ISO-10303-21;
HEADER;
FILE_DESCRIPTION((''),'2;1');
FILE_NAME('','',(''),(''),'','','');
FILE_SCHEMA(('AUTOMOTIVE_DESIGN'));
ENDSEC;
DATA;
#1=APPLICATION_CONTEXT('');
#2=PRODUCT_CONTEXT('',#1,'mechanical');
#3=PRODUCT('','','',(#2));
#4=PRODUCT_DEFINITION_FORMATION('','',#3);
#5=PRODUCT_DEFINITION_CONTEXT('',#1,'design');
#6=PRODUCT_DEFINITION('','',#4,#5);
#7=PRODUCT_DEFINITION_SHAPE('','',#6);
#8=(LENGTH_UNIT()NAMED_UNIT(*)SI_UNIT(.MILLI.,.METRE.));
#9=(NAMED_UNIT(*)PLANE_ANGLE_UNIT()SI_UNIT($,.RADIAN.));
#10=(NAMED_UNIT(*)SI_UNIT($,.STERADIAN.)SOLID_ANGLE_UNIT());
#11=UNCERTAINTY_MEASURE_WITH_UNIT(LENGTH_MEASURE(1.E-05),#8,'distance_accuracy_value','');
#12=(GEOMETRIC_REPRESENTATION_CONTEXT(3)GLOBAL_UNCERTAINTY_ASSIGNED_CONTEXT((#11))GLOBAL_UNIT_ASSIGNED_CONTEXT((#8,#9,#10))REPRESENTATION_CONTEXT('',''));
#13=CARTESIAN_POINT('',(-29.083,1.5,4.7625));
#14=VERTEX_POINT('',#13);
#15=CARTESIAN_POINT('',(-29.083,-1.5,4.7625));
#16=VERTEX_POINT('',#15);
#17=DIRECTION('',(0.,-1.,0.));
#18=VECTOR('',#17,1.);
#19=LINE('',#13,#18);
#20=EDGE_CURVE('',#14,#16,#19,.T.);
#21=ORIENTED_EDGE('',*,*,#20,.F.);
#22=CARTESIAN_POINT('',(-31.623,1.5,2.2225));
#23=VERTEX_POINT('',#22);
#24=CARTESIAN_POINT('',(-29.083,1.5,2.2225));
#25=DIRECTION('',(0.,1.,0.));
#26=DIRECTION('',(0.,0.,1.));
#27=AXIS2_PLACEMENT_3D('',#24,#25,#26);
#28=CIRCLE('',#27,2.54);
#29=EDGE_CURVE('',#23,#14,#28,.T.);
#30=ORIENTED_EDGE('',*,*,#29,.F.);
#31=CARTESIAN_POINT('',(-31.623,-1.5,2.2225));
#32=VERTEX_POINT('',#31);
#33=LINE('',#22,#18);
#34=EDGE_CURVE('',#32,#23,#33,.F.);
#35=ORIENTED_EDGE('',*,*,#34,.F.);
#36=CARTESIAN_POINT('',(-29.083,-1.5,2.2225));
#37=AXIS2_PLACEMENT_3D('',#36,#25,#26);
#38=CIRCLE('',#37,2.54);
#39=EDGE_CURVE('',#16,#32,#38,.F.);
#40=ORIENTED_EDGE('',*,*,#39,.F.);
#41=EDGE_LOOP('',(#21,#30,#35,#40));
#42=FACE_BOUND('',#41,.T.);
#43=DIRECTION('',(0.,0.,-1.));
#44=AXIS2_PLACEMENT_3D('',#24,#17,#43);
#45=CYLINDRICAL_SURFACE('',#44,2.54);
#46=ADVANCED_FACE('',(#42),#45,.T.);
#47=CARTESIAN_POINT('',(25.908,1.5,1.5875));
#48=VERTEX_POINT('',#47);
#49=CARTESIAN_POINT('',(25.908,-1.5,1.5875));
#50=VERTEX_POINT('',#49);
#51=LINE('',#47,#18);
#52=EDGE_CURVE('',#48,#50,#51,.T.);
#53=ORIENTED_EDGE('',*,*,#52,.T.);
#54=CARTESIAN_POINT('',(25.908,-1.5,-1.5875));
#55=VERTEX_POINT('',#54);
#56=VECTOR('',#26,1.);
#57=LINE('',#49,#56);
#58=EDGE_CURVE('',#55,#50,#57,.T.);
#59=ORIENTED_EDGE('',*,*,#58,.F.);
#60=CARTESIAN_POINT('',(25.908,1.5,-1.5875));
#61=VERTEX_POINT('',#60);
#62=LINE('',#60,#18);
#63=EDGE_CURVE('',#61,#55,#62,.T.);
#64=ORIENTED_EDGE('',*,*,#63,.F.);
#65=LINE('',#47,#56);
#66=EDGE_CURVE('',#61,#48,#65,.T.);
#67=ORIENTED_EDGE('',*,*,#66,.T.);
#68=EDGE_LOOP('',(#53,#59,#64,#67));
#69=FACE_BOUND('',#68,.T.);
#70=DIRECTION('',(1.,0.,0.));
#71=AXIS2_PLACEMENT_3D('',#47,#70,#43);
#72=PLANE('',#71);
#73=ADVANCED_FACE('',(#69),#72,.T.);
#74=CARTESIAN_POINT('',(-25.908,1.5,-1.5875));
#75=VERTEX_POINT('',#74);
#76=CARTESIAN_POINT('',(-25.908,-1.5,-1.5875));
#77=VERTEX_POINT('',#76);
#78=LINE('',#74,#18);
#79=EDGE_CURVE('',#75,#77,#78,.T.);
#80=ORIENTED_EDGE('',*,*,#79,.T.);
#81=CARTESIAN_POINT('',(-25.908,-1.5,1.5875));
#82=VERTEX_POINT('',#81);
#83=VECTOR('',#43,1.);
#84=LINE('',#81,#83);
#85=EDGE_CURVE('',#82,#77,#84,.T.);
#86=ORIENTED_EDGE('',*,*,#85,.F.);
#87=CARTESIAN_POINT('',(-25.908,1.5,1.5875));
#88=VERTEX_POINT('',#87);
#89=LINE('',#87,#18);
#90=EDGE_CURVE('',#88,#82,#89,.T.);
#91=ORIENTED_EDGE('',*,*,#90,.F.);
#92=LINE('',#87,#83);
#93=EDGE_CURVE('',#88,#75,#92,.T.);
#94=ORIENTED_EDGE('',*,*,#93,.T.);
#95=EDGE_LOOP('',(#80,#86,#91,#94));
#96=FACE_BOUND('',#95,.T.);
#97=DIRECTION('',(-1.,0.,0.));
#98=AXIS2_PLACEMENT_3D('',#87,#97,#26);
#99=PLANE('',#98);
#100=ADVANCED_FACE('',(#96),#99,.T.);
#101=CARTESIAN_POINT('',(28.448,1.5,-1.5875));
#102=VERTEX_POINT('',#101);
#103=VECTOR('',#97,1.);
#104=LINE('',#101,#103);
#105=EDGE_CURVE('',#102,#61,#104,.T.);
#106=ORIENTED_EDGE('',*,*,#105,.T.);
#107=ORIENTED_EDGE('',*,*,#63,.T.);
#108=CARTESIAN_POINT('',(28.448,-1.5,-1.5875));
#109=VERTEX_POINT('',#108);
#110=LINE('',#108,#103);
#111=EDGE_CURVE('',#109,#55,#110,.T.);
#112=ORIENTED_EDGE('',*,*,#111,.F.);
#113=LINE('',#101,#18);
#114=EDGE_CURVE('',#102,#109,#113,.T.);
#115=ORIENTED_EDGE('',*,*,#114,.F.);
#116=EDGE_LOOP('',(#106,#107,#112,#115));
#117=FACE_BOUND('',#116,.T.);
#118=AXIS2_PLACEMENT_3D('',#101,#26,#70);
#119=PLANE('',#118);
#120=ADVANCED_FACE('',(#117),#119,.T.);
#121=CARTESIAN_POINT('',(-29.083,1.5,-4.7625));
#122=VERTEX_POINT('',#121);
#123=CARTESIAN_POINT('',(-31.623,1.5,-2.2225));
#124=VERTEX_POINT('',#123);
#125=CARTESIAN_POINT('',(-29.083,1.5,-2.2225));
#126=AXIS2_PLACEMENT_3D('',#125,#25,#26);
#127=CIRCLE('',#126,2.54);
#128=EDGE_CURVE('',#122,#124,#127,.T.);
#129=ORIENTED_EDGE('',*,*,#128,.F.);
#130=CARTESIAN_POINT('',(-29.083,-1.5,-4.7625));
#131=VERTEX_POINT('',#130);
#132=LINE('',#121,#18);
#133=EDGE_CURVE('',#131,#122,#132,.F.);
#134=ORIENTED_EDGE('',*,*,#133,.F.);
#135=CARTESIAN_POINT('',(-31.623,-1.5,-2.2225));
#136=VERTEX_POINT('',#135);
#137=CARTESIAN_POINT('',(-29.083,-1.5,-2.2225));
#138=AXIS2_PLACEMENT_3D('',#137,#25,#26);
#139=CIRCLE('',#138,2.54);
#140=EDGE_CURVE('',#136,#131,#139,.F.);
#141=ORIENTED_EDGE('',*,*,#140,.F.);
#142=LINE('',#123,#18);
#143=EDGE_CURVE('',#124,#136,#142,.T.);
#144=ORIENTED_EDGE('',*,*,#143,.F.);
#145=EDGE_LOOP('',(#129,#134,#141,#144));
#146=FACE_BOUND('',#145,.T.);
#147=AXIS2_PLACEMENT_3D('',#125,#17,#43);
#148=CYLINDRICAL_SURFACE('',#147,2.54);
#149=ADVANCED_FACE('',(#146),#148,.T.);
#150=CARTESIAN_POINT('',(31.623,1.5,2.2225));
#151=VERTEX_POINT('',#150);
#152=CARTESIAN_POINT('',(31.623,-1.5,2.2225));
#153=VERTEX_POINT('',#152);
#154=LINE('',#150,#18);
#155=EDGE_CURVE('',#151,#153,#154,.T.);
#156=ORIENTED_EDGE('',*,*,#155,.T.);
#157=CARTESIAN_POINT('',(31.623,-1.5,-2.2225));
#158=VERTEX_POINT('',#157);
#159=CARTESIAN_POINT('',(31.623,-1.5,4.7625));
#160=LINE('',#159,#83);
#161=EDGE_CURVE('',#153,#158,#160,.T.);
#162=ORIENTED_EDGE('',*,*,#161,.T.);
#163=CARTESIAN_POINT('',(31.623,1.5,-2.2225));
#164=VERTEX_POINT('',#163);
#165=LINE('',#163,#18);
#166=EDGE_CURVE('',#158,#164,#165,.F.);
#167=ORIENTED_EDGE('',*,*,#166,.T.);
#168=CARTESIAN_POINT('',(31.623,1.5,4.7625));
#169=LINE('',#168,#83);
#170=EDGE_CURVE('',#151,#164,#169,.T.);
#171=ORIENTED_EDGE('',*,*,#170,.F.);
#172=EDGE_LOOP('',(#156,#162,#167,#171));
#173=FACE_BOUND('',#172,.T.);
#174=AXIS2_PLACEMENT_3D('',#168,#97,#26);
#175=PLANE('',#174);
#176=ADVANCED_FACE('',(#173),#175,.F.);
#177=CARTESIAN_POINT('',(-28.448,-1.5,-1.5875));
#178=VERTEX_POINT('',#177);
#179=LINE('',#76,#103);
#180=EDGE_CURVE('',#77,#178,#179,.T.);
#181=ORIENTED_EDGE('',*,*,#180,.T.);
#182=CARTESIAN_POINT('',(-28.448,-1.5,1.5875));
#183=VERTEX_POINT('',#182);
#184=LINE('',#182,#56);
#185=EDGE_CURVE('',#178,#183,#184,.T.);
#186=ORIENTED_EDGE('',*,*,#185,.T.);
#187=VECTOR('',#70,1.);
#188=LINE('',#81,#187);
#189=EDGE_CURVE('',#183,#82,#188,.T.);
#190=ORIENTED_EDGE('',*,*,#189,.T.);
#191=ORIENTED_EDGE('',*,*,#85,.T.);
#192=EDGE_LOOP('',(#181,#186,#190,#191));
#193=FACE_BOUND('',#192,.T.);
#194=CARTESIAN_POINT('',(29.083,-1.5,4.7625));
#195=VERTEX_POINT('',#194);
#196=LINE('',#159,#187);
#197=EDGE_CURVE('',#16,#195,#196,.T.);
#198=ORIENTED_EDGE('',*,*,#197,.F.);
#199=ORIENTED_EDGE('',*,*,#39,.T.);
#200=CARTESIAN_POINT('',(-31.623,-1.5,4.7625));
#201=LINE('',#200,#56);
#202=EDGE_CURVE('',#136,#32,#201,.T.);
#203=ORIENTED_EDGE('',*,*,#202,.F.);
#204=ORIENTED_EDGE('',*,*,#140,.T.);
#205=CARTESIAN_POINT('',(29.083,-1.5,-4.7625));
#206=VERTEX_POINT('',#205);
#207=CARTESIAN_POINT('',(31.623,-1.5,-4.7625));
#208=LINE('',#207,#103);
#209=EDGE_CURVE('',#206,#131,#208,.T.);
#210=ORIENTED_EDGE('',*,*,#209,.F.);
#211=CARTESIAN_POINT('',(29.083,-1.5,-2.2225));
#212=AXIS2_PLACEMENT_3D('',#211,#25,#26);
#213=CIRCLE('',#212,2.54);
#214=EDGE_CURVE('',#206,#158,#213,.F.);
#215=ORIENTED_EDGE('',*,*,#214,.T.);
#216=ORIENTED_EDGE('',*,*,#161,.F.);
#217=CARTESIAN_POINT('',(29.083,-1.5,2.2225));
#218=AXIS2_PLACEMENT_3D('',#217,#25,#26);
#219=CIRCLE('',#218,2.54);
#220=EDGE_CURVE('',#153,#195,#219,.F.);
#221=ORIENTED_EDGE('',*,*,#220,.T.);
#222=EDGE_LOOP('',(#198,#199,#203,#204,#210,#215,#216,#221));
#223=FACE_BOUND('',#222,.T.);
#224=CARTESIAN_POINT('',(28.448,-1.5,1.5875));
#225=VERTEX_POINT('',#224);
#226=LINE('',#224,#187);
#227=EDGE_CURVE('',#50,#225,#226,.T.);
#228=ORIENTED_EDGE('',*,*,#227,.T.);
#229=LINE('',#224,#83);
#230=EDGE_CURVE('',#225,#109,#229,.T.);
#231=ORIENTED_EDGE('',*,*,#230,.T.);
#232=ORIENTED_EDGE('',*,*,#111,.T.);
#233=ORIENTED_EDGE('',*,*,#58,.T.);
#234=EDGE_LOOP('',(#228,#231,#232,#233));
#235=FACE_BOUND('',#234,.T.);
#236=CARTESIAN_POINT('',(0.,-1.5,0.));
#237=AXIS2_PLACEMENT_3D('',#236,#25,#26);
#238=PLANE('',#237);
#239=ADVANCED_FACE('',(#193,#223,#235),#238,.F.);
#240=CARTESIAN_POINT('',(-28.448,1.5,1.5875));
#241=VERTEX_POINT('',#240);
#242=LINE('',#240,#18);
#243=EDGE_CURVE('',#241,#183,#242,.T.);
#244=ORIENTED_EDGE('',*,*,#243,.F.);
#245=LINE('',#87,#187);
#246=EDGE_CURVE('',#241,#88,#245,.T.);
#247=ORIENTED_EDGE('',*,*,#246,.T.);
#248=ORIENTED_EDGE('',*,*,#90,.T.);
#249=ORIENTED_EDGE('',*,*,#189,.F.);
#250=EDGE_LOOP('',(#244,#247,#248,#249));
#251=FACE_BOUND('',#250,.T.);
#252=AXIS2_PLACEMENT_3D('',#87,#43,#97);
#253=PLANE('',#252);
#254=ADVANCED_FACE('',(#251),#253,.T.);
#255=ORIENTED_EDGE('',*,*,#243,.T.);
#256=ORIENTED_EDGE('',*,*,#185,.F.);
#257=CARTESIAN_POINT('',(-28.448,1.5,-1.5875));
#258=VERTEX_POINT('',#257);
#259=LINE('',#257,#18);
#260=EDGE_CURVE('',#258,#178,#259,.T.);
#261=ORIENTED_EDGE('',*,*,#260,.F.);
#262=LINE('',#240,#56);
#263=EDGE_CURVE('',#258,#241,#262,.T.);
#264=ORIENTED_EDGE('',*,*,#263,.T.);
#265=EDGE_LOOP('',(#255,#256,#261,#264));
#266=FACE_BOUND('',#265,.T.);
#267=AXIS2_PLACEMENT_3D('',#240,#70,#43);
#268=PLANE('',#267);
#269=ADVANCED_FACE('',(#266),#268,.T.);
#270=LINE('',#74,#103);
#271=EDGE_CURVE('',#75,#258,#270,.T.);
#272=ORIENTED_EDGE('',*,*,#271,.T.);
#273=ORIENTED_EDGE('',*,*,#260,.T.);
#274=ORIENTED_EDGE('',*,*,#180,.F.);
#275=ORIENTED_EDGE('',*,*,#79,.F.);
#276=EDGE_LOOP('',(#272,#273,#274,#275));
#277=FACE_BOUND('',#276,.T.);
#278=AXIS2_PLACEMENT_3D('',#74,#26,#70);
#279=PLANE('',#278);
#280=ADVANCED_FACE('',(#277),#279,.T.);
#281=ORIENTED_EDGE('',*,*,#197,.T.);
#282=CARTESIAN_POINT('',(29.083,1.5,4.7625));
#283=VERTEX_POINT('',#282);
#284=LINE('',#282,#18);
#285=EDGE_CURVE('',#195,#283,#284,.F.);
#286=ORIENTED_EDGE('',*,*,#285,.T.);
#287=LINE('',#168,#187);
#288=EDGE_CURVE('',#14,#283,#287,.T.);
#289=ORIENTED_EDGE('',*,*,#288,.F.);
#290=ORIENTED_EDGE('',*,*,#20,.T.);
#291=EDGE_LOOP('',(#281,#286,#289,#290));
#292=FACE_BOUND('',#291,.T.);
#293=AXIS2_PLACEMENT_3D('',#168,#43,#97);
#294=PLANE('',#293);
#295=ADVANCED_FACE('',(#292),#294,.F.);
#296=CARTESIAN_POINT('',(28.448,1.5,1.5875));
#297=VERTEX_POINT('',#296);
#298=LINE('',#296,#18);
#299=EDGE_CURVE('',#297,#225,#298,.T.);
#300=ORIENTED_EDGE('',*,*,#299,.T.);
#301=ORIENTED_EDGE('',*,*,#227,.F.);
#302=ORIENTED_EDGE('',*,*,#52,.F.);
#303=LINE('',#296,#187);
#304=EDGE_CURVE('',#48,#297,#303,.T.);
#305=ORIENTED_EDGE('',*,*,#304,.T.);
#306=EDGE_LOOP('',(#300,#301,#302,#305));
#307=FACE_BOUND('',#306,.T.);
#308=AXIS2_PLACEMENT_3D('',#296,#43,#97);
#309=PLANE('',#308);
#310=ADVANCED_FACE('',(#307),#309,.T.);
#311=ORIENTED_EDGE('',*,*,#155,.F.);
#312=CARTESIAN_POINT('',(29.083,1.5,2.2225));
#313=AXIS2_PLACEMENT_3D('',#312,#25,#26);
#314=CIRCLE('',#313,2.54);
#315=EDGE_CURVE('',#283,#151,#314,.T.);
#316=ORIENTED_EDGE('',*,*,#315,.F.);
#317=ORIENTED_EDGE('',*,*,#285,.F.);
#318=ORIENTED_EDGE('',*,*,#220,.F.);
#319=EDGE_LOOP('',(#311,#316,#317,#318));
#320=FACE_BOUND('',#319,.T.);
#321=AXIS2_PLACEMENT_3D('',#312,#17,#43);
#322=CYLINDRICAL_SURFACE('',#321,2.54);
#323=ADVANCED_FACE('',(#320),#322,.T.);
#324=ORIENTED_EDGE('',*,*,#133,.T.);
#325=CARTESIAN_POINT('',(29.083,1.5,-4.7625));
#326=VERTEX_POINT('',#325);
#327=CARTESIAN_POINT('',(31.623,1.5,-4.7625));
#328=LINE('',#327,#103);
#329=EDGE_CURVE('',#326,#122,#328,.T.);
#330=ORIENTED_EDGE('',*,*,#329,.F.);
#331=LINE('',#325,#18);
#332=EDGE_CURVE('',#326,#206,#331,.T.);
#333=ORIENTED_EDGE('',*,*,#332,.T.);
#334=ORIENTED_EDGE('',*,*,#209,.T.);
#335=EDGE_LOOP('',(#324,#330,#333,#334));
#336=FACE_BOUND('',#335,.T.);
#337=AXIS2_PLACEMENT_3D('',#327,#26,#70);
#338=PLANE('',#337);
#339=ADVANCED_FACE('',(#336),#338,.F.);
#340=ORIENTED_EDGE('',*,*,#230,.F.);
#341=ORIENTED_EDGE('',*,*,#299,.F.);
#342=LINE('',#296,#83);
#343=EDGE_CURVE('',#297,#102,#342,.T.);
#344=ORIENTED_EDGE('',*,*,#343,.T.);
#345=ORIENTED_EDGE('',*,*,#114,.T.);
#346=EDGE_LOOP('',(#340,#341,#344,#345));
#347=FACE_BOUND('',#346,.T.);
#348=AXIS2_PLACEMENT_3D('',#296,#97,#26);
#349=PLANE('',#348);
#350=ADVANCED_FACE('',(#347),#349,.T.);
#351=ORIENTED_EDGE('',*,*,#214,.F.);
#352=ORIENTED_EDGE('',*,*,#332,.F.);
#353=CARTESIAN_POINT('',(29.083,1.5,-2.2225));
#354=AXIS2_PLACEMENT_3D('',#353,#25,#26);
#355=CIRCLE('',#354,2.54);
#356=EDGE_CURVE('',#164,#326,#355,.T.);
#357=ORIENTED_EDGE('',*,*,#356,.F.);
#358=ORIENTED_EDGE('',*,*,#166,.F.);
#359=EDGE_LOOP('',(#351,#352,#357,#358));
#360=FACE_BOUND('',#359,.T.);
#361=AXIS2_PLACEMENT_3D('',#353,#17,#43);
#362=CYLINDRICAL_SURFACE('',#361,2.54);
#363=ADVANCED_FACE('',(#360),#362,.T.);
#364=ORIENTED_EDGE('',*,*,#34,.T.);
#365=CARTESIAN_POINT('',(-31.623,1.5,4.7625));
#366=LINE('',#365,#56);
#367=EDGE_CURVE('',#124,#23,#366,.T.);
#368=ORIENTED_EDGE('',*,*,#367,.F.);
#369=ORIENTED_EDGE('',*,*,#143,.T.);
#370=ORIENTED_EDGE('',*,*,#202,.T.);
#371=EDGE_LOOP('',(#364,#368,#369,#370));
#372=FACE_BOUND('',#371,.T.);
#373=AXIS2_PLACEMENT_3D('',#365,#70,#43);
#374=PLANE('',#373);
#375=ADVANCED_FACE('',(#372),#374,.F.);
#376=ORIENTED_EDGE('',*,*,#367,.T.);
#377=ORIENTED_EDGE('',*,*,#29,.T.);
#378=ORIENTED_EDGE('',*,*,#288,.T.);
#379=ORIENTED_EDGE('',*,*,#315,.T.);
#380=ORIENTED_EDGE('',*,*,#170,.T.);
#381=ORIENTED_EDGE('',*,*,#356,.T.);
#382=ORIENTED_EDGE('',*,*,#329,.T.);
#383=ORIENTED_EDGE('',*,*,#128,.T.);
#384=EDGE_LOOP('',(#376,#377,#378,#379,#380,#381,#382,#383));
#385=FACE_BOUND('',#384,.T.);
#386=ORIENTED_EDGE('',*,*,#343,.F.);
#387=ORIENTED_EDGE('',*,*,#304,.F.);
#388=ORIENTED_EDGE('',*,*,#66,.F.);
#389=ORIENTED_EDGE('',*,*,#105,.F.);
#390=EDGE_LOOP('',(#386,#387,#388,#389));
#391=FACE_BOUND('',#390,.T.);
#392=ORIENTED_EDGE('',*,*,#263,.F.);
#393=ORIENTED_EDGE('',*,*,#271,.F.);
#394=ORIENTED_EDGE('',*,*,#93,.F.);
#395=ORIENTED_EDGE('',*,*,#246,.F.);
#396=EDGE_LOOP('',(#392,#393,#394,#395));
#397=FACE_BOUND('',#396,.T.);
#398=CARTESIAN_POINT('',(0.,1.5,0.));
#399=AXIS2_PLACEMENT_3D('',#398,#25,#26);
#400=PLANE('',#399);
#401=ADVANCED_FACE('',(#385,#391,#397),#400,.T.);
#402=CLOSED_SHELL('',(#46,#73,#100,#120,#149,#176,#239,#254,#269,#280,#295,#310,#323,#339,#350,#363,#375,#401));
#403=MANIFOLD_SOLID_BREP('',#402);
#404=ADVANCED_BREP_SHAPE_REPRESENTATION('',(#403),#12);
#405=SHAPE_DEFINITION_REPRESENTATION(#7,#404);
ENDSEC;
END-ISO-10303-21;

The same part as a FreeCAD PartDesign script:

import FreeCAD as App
import Part
import Sketcher
Q = App.Units.Quantity


def edges_at(feature, points):
    """Names of the edges that pass closest to the given points."""
    edges = feature.Shape.Edges
    near = lambda p: min(range(len(edges)), key=lambda i: edges[i].distToShape(Part.Vertex(*p))[0])
    return sorted({f"Edge{near(p) + 1}" for p in points})

doc = App.newDocument("Part")
body = doc.addObject("PartDesign::Body", "Body")

# Sketch on XZ plane
sketch1 = body.newObject("Sketcher::SketchObject", "Sketch")
sketch1.AttachmentSupport = (doc.getObject("XZ_Plane"), [""])
sketch1.MapMode = "FlatFace"
sketch1.addGeometry([
    Part.LineSegment(App.Vector(-31.6, -4.8, 0), App.Vector(-31.6, 4.8, 0)),  # 0
    Part.LineSegment(App.Vector(-31.6, 4.8, 0), App.Vector(31.6, 4.8, 0)),  # 1
    Part.LineSegment(App.Vector(31.6, 4.8, 0), App.Vector(31.6, -4.8, 0)),  # 2
    Part.LineSegment(App.Vector(31.6, -4.8, 0), App.Vector(-31.6, -4.8, 0)),  # 3
    Part.LineSegment(App.Vector(-25.9, 1.6, 0), App.Vector(-28.4, 1.6, 0)),  # 4
    Part.LineSegment(App.Vector(-28.4, 1.6, 0), App.Vector(-28.4, -1.6, 0)),  # 5
    Part.LineSegment(App.Vector(-28.4, -1.6, 0), App.Vector(-25.9, -1.6, 0)),  # 6
    Part.LineSegment(App.Vector(-25.9, -1.6, 0), App.Vector(-25.9, 1.6, 0)),  # 7
    Part.LineSegment(App.Vector(28.4, 1.6, 0), App.Vector(25.9, 1.6, 0)),  # 8
    Part.LineSegment(App.Vector(25.9, 1.6, 0), App.Vector(25.9, -1.6, 0)),  # 9
    Part.LineSegment(App.Vector(25.9, -1.6, 0), App.Vector(28.4, -1.6, 0)),  # 10
    Part.LineSegment(App.Vector(28.4, -1.6, 0), App.Vector(28.4, 1.6, 0)),  # 11
], False)
sketch1.addConstraint([
    Sketcher.Constraint("Coincident", 0, 2, 1, 1),
    Sketcher.Constraint("Coincident", 1, 2, 2, 1),
    Sketcher.Constraint("Coincident", 2, 2, 3, 1),
    Sketcher.Constraint("Coincident", 3, 2, 0, 1),
    Sketcher.Constraint("Coincident", 4, 2, 5, 1),
    Sketcher.Constraint("Coincident", 5, 2, 6, 1),
    Sketcher.Constraint("Coincident", 6, 2, 7, 1),
    Sketcher.Constraint("Coincident", 7, 2, 4, 1),
    Sketcher.Constraint("Coincident", 8, 2, 9, 1),
    Sketcher.Constraint("Coincident", 9, 2, 10, 1),
    Sketcher.Constraint("Coincident", 10, 2, 11, 1),
    Sketcher.Constraint("Coincident", 11, 2, 8, 1),
    Sketcher.Constraint("Vertical", 0),
    Sketcher.Constraint("Horizontal", 1),
    Sketcher.Constraint("Vertical", 2),
    Sketcher.Constraint("Horizontal", 3),
    Sketcher.Constraint("Horizontal", 4),
    Sketcher.Constraint("Vertical", 5),
    Sketcher.Constraint("Horizontal", 6),
    Sketcher.Constraint("Vertical", 7),
    Sketcher.Constraint("Horizontal", 8),
    Sketcher.Constraint("Vertical", 9),
    Sketcher.Constraint("Horizontal", 10),
    Sketcher.Constraint("Vertical", 11),
    Sketcher.Constraint("Symmetric", 0, 2, 2, 2, -1, 1),
    Sketcher.Constraint("Symmetric", 6, 2, 8, 2, -1, 1),
    Sketcher.Constraint("Symmetric", 4, 2, 10, 2, -1, 1),
    Sketcher.Constraint("Horizontal", 7, 2, 8, 2),
    Sketcher.Constraint("DistanceX", 4, 2, 4, 1, Q("0.1 in")),
    Sketcher.Constraint("DistanceX", 1, 1, 1, 2, Q("2.49 in")),
    Sketcher.Constraint("DistanceY", 0, 1, 0, 2, Q("0.375 in")),
    Sketcher.Constraint("DistanceY", 5, 2, 5, 1, Q("0.125 in")),
    Sketcher.Constraint("DistanceX", 4, 2, -1, 1, Q("1.12 in")),
])
pad1 = body.newObject("PartDesign::Pad", "Pad")
pad1.Profile = sketch1
pad1.Length = 3
pad1.Midplane = True
doc.recompute()

fillet = body.newObject("PartDesign::Fillet", "Fillet")
fillet.Base = (pad1, edges_at(pad1, [
    (-31.623, 0, -4.763),
    (31.623, 0, -4.763),
    (31.623, 0, 4.763),
    (-31.623, 0, 4.763),
]))
fillet.Radius = Q("0.1 in")

doc.recompute()
